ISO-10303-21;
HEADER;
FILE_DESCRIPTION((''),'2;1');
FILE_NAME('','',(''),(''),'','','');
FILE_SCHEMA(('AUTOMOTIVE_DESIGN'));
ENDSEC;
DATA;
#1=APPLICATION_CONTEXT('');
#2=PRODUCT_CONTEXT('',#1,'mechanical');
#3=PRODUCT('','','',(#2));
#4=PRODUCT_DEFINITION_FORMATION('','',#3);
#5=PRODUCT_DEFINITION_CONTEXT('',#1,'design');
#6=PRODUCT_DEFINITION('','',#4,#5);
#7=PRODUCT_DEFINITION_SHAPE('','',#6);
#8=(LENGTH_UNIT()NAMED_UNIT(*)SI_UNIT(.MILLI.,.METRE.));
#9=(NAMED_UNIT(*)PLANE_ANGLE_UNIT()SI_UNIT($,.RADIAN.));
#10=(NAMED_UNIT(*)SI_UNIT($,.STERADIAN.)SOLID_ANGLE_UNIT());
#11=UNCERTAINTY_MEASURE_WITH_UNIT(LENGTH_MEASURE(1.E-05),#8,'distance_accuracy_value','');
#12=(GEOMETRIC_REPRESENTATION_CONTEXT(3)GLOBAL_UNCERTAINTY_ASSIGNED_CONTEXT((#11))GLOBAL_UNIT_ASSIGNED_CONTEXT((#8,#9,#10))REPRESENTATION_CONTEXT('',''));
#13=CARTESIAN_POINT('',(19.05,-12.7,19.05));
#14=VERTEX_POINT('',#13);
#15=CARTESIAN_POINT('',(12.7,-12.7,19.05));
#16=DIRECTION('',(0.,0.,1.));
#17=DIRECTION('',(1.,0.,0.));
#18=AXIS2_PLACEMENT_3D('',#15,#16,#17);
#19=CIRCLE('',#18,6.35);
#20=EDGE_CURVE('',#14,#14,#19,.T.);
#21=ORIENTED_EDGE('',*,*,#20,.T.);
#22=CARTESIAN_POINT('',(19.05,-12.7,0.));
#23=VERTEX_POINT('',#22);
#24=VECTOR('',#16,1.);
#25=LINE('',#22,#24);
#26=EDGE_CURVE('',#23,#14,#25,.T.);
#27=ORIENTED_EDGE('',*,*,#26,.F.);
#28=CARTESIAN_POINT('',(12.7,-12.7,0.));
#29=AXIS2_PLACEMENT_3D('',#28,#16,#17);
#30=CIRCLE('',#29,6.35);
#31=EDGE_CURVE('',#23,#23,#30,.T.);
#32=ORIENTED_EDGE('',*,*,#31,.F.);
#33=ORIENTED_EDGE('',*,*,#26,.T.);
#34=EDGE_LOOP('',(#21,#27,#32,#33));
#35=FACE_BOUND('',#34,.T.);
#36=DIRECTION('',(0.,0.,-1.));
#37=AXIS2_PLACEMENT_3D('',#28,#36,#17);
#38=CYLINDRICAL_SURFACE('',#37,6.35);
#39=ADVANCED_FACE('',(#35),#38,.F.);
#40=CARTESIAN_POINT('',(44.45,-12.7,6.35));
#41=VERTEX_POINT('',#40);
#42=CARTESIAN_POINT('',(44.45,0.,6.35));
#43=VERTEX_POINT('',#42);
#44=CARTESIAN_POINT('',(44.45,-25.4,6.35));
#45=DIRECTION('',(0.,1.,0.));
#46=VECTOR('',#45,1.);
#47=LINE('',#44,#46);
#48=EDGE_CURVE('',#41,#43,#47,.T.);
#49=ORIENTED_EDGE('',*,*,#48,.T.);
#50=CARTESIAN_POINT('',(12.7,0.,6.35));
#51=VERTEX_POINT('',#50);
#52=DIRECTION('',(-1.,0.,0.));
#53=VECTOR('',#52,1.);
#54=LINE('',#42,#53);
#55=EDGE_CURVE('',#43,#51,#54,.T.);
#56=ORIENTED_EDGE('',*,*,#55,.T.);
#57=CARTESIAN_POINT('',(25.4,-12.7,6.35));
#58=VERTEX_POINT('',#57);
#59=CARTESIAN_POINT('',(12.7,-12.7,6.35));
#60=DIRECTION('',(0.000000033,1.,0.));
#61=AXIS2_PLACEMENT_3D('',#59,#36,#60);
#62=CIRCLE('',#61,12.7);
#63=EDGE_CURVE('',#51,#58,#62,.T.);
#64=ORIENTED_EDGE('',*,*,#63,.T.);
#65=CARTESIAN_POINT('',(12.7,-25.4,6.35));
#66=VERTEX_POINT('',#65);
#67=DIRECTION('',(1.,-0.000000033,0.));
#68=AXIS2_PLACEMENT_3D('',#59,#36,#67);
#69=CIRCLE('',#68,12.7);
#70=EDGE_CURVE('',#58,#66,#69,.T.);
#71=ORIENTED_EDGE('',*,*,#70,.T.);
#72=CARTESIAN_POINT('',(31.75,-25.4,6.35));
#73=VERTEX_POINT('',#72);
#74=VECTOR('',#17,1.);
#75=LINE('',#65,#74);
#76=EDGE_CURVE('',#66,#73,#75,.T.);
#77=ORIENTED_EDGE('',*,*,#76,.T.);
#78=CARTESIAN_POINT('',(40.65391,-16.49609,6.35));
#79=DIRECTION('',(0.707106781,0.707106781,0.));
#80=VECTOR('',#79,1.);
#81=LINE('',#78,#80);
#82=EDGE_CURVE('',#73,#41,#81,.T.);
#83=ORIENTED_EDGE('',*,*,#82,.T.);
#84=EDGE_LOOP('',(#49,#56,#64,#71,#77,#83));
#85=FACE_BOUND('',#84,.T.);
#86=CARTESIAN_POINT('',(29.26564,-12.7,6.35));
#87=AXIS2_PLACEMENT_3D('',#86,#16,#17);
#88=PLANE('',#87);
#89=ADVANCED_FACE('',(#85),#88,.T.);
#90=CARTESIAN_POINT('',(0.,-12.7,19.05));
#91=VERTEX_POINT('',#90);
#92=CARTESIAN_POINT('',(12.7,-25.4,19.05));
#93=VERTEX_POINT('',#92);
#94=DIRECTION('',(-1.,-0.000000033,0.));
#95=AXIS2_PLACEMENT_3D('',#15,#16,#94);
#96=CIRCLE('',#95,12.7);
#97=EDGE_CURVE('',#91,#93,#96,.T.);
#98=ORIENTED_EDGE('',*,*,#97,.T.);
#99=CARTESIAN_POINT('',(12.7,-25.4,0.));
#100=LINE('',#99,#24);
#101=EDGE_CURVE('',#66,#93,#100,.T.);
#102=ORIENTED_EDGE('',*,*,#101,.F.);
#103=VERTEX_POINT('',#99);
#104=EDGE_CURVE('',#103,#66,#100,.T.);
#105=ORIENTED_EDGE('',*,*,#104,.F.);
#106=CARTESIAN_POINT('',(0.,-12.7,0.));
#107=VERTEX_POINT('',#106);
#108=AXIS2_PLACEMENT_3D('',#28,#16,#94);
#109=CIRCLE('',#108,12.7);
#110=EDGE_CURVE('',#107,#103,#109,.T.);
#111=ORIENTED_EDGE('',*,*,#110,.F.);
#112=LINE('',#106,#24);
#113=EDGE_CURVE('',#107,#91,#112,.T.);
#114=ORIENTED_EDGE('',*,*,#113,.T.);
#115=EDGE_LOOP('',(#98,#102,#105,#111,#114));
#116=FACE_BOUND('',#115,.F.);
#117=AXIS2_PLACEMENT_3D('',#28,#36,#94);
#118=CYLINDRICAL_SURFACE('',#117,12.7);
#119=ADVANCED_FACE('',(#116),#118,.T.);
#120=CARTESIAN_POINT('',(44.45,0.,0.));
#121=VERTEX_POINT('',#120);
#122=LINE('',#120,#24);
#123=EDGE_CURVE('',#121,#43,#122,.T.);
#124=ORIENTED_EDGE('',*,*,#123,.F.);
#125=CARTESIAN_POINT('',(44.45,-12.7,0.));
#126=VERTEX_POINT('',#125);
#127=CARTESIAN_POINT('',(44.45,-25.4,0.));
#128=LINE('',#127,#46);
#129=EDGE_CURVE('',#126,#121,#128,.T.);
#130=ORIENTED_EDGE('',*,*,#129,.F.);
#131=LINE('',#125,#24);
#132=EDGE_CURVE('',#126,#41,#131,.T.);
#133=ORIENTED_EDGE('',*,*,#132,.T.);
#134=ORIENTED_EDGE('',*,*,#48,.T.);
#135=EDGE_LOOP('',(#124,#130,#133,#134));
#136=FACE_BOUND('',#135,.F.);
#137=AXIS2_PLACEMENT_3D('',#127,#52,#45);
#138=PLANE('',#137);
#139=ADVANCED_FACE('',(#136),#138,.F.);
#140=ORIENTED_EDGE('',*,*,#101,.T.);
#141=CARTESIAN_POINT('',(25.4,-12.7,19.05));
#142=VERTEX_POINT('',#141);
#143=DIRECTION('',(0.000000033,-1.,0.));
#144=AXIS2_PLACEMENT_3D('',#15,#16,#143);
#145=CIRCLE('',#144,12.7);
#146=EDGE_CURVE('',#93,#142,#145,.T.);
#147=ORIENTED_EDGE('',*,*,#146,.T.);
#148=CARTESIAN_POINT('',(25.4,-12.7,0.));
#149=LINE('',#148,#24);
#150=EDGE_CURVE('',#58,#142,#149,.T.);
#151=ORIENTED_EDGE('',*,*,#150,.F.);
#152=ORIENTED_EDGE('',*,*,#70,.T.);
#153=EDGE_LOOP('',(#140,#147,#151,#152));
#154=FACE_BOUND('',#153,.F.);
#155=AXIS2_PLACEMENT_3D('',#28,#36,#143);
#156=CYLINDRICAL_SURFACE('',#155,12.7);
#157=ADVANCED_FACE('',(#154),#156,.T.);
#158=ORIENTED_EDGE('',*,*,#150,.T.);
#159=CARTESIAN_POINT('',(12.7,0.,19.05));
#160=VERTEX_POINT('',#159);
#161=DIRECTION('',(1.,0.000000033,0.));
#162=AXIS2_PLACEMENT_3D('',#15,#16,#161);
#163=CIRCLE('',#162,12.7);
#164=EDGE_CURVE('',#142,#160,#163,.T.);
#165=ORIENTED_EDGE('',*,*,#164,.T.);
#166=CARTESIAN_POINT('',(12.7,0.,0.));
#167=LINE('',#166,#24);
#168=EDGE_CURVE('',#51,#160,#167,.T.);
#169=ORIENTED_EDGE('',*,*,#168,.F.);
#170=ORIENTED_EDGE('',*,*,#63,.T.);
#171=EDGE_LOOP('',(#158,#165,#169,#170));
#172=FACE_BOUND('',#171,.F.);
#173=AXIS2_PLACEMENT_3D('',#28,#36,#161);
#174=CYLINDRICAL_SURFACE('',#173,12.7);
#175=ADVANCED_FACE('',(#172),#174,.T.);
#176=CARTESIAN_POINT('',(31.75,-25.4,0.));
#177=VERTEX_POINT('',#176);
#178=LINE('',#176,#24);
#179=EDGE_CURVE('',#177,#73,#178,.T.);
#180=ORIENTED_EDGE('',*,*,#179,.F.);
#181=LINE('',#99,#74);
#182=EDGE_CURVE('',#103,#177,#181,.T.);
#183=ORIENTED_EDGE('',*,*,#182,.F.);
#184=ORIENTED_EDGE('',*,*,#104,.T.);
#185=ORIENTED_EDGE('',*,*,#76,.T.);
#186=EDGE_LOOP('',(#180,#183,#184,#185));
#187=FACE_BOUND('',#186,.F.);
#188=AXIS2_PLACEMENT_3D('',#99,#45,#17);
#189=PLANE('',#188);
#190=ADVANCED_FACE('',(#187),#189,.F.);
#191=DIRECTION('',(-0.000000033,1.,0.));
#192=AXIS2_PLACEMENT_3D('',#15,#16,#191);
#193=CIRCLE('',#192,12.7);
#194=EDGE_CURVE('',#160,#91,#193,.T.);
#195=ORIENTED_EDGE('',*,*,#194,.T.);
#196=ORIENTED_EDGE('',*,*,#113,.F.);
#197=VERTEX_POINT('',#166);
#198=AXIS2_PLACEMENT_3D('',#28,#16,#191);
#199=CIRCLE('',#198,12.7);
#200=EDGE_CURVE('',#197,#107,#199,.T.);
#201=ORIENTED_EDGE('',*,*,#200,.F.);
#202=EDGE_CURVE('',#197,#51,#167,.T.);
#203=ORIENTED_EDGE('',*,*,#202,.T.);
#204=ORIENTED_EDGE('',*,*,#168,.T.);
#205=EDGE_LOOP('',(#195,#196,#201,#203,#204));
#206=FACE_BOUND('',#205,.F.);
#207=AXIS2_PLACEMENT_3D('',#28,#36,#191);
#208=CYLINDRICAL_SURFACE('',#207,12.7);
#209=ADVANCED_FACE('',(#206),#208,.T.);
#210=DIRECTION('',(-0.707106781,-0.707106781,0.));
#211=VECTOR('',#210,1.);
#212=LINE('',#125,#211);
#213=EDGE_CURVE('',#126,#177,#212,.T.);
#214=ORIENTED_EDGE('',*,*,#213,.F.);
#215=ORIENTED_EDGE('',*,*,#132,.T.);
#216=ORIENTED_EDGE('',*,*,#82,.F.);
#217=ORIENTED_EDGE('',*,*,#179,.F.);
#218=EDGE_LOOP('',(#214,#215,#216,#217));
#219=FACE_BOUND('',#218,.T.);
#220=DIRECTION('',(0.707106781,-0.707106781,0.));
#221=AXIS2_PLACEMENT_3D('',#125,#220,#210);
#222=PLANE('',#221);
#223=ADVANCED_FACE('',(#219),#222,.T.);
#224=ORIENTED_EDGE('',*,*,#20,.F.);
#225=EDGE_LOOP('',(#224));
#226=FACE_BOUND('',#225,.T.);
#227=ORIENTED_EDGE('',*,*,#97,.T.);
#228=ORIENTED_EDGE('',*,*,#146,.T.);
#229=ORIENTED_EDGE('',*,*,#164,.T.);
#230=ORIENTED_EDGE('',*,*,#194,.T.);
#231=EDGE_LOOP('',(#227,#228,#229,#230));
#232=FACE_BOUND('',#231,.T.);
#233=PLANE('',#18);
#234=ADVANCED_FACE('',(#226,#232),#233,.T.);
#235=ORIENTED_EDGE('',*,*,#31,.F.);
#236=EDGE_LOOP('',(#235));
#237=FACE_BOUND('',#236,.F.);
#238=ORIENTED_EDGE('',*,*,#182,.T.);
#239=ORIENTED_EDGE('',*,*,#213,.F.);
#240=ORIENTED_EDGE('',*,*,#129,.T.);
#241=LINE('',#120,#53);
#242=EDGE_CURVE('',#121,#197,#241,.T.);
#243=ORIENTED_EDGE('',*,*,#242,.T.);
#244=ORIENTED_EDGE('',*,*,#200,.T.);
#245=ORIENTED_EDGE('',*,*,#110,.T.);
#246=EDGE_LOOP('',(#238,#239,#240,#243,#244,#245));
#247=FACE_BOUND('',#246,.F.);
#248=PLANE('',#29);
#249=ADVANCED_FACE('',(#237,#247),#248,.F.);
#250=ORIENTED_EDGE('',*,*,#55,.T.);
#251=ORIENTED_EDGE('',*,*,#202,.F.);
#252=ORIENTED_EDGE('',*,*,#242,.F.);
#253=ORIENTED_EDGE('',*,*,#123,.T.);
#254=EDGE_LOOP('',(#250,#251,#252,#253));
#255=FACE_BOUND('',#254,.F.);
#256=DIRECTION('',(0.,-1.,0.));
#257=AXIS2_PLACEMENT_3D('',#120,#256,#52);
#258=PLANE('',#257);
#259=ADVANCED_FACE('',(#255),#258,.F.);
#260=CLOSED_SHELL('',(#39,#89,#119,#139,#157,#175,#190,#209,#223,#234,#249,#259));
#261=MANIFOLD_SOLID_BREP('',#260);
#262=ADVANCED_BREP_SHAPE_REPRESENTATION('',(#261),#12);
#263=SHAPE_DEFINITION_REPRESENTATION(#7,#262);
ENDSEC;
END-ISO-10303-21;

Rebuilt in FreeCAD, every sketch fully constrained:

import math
import FreeCAD as App
import Part
import Sketcher
Q = App.Units.Quantity

doc = App.newDocument("Part")
params = doc.addObject("Spreadsheet::Sheet", "Params")
for row, (alias, value) in enumerate([
    ("sketch1_radius", "0.5 in"),
    ("sketch1_width", "1.25 in"),
    ("pad1_length", "0.25 in"),
    ("sketch2_diameter", "0.5 in"),
    ("sketch2_radius", "0.5 in"),
    ("pad2_length", "0.75 in"),
    ("sketch3_width", "0.5 in"),
], start=1):
    params.set(f"A{row}", alias)
    params.set(f"B{row}", "=" + value)
    params.setAlias(f"B{row}", alias)

body = doc.addObject("PartDesign::Body", "Body")

sketch1 = body.newObject("Sketcher::SketchObject", "Sketch")
sketch1.AttachmentSupport = (doc.getObject("XY_Plane"), [""])
sketch1.MapMode = "FlatFace"
sketch1.addGeometry([
    Part.LineSegment(App.Vector(44, 0, 0), App.Vector(13, 0, 0)),
    Part.ArcOfCircle(Part.Circle(App.Vector(13, -13, 0), App.Vector(0, 0, 1), 13), math.radians(0), math.radians(90)),
    Part.ArcOfCircle(Part.Circle(App.Vector(13, -13, 0), App.Vector(0, 0, 1), 13), math.radians(-90), math.radians(0)),
    Part.LineSegment(App.Vector(13, -25, 0), App.Vector(44, -25, 0)),
    Part.LineSegment(App.Vector(44, -25, 0), App.Vector(44, 0, 0)),
], False)
sketch1.addConstraint([
    Sketcher.Constraint("Tangent", 0, 2, 1, 2),
    Sketcher.Constraint("Tangent", 1, 1, 2, 2),
    Sketcher.Constraint("Tangent", 2, 1, 3, 1),
    Sketcher.Constraint("Coincident", 3, 2, 4, 1),
    Sketcher.Constraint("Coincident", 4, 2, 0, 1),
    Sketcher.Constraint("Horizontal", 0),
    Sketcher.Constraint("Horizontal", 3),
    Sketcher.Constraint("Vertical", 4),
    Sketcher.Constraint("Equal", 1, 2),
    Sketcher.Constraint("PointOnObject", 0, 2, -1),
    Sketcher.Constraint("Horizontal", 2, 3, 1, 1),
    Sketcher.Constraint("Radius", 1, Q("0.5 in")),
    Sketcher.Constraint("DistanceX", -1, 1, 1, 1, Q("1 in")),
    Sketcher.Constraint("DistanceX", 0, 2, 0, 1, Q("1.25 in")),
])
sketch1.setExpression("Constraints[11]", "Params.sketch1_radius")
sketch1.setExpression("Constraints[13]", "Params.sketch1_width")
pad1 = body.newObject("PartDesign::Pad", "Pad")
pad1.Profile = sketch1
pad1.setExpression("Length", "Params.pad1_length")

sketch2 = body.newObject("Sketcher::SketchObject", "Sketch001")
sketch2.AttachmentSupport = (doc.getObject("XY_Plane"), [""])
sketch2.MapMode = "FlatFace"
sketch2.addGeometry([
    Part.ArcOfCircle(Part.Circle(App.Vector(13, -13, 0), App.Vector(0, 0, 1), 13), math.radians(0), math.radians(90)),
    Part.ArcOfCircle(Part.Circle(App.Vector(13, -13, 0), App.Vector(0, 0, 1), 13), math.radians(90), math.radians(180)),
    Part.ArcOfCircle(Part.Circle(App.Vector(13, -13, 0), App.Vector(0, 0, 1), 13), math.radians(-180), math.radians(-90)),
    Part.ArcOfCircle(Part.Circle(App.Vector(13, -13, 0), App.Vector(0, 0, 1), 13), math.radians(-90), math.radians(0)),
    Part.Circle(App.Vector(13, -13, 0), App.Vector(0, 0, 1), 6),
], False)
sketch2.addConstraint([
    Sketcher.Constraint("Tangent", 0, 2, 1, 1),
    Sketcher.Constraint("Tangent", 1, 2, 2, 1),
    Sketcher.Constraint("Tangent", 2, 2, 3, 1),
    Sketcher.Constraint("Tangent", 3, 2, 0, 1),
    Sketcher.Constraint("Coincident", 4, 3, 0, 3),
    Sketcher.Constraint("Equal", 0, 1),
    Sketcher.Constraint("PointOnObject", 0, 2, -1),
    Sketcher.Constraint("PointOnObject", 1, 2, -2),
    Sketcher.Constraint("Horizontal", 4, 3, 1, 2),
    Sketcher.Constraint("Horizontal", 1, 2, 3, 2),
    Sketcher.Constraint("Vertical", 4, 3, 0, 2),
    Sketcher.Constraint("Vertical", 0, 2, 2, 2),
    Sketcher.Constraint("Diameter", 4, Q("0.5 in")),
    Sketcher.Constraint("Radius", 0, Q("0.5 in")),
])
sketch2.setExpression("Constraints[12]", "Params.sketch2_diameter")
sketch2.setExpression("Constraints[13]", "Params.sketch2_radius")
pad2 = body.newObject("PartDesign::Pad", "Pad001")
pad2.Profile = sketch2
pad2.setExpression("Length", "Params.pad2_length")

sketch3 = body.newObject("Sketcher::SketchObject", "Sketch002")
sketch3.AttachmentSupport = (doc.getObject("XY_Plane"), [""])
sketch3.MapMode = "FlatFace"
sketch3.addGeometry([
    Part.LineSegment(App.Vector(44, -13, 0), App.Vector(32, -25, 0)),
    Part.LineSegment(App.Vector(32, -25, 0), App.Vector(44, -25, 0)),
    Part.LineSegment(App.Vector(44, -25, 0), App.Vector(44, -13, 0)),
], False)
sketch3.addConstraint([
    Sketcher.Constraint("Coincident", 0, 2, 1, 1),
    Sketcher.Constraint("Coincident", 1, 2, 2, 1),
    Sketcher.Constraint("Coincident", 2, 2, 0, 1),
    Sketcher.Constraint("Horizontal", 1),
    Sketcher.Constraint("Vertical", 2),
    Sketcher.Constraint("Equal", 1, 2),
    Sketcher.Constraint("DistanceX", 1, 1, 1, 2, Q("0.5 in")),
    Sketcher.Constraint("DistanceY", 0, 2, -1, 1, Q("1 in")),
    Sketcher.Constraint("DistanceX", -1, 1, 0, 2, Q("1.25 in")),
])
sketch3.setExpression("Constraints[6]", "Params.sketch3_width")
pocket1 = body.newObject("PartDesign::Pocket", "Pocket")
pocket1.Profile = sketch3
pocket1.Type = "ThroughAll"
pocket1.Reversed = True

doc.recompute()
